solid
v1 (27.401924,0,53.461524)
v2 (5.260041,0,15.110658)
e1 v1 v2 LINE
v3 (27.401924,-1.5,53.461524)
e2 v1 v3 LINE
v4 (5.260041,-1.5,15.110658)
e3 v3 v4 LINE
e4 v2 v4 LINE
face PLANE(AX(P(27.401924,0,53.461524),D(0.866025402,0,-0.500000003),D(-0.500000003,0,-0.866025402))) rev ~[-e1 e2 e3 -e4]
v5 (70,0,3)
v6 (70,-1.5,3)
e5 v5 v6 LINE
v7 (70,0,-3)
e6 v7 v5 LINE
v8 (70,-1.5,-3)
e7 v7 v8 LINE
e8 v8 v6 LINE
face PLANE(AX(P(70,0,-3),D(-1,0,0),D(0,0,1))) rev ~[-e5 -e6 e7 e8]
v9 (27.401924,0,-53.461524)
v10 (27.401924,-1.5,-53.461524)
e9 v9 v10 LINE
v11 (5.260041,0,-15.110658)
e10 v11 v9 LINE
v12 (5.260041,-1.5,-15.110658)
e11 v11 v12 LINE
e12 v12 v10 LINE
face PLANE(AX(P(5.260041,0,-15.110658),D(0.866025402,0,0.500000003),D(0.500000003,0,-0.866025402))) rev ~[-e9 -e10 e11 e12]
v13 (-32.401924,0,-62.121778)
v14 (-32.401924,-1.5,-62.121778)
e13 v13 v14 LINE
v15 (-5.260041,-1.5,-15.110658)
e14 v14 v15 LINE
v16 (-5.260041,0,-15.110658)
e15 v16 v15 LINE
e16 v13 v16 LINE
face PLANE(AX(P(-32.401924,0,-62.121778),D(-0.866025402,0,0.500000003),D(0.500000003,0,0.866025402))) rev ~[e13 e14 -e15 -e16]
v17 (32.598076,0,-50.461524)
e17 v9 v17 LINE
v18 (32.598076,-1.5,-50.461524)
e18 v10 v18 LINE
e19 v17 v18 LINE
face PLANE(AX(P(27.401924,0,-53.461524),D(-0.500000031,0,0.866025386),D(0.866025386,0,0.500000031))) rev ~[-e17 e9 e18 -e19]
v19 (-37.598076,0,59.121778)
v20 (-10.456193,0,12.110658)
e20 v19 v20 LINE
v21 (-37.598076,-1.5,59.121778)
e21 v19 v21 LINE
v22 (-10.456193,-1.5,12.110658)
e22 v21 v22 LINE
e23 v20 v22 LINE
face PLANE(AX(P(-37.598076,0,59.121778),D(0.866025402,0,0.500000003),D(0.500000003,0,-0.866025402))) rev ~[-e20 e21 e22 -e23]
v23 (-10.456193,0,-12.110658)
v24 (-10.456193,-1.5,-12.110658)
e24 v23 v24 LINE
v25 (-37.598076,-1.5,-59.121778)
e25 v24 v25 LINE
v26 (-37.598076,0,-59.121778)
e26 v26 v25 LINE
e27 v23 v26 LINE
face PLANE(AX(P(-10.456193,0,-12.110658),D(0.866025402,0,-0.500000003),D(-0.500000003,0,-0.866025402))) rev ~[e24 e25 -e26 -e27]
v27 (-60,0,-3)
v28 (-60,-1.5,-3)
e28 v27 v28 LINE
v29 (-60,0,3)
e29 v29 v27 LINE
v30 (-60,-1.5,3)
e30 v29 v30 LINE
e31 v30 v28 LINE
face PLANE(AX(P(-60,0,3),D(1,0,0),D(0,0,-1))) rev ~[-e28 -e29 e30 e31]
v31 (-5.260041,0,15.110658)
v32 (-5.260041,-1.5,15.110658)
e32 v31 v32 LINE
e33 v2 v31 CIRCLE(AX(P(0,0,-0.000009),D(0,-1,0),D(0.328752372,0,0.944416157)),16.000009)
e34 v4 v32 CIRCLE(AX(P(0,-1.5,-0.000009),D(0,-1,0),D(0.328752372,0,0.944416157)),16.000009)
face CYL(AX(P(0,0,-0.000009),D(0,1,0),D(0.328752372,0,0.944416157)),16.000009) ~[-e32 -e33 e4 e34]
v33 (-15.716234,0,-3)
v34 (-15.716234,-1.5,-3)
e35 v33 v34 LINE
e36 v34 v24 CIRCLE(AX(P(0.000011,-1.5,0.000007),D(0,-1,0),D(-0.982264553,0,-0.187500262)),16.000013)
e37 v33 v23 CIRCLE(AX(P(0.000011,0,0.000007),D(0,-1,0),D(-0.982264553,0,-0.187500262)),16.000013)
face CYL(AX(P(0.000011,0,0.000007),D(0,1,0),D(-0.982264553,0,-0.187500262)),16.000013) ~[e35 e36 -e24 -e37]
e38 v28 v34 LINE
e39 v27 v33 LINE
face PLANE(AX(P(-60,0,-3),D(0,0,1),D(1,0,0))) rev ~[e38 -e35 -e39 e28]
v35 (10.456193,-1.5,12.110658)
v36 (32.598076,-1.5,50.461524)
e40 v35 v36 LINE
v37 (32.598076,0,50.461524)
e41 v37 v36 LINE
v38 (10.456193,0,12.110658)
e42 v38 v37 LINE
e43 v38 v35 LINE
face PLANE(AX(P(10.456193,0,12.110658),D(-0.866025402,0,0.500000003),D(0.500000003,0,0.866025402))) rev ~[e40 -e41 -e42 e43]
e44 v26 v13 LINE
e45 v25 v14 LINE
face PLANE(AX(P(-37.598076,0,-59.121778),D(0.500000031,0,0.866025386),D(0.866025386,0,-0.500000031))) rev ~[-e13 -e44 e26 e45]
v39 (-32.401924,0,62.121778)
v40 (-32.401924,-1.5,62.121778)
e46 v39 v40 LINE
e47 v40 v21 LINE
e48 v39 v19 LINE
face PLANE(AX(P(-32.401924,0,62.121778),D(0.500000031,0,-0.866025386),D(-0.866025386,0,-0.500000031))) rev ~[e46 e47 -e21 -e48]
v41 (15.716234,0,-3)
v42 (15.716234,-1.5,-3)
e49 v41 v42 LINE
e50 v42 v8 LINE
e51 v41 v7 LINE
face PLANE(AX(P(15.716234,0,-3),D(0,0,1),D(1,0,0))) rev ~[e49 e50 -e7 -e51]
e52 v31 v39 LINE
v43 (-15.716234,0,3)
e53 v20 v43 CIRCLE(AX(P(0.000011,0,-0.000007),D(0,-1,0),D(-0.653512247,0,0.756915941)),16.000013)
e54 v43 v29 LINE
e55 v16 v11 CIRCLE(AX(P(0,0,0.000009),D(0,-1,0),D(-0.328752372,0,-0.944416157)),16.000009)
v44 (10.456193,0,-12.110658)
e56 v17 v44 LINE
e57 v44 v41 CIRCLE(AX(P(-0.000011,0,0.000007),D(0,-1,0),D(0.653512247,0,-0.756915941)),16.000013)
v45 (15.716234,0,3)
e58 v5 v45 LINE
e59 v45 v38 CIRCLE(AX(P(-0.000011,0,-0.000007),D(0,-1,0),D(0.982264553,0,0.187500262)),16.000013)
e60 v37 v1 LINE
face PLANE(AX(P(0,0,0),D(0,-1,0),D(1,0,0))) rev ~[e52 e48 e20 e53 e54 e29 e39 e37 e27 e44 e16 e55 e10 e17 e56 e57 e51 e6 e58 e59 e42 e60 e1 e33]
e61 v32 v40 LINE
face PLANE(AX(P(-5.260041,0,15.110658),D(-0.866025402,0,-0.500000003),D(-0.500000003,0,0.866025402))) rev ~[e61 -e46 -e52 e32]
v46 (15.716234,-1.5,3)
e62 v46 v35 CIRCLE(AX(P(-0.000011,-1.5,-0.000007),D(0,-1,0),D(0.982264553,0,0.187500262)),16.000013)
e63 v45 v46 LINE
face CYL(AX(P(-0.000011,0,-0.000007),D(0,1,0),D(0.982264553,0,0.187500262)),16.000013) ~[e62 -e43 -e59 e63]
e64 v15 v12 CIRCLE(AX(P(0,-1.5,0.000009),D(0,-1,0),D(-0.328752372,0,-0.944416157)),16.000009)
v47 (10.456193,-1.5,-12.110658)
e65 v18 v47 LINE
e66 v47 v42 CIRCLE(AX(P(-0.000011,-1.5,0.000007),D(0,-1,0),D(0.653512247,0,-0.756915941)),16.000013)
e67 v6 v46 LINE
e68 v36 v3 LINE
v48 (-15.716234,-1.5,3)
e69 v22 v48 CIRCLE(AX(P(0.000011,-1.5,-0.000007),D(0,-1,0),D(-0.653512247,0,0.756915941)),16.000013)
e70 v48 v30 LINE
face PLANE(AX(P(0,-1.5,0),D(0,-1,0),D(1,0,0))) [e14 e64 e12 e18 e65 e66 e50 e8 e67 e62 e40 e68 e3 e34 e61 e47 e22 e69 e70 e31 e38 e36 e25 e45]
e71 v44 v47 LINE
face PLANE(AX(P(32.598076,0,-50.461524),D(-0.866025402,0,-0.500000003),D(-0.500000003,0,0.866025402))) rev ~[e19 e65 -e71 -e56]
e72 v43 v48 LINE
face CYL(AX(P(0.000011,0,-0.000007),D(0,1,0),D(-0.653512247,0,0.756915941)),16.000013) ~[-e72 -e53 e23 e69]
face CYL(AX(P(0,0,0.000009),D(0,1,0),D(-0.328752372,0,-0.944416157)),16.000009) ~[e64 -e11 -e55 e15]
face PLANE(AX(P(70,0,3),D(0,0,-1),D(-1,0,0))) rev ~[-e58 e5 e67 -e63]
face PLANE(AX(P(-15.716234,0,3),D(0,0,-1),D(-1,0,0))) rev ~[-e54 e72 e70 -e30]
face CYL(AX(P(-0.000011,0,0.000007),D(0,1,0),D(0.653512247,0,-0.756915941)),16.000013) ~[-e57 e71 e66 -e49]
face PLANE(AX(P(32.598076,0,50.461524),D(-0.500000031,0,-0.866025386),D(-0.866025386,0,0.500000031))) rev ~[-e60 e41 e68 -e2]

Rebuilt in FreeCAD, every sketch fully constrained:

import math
import FreeCAD as App
import Part
import Sketcher
from FreeCAD import Vector
Q = App.Units.Quantity

doc = App.newDocument("Part")
body = doc.addObject("PartDesign::Body", "Body")

# Sketch on XZ plane
sketch1 = body.newObject("Sketcher::SketchObject", "Sketch")
sketch1.AttachmentSupport = (doc.getObject("XZ_Plane"), [""])
sketch1.MapMode = "FlatFace"
sketch1.addGeometry(Part.LineSegment(Vector(-60, -3, 0), Vector(-15.716234, -3, 0)), False)
sketch1.addGeometry(Part.ArcOfCircle(Part.Circle(Vector(0.000011, 0.000007, 0), Vector(0, 0, 1), 16.000013), math.radians(-169.193062), math.radians(-130.806937)), False)
sketch1.addGeometry(Part.LineSegment(Vector(-10.456193, -12.110658, 0), Vector(-37.598076, -59.121778, 0)), False)
sketch1.addGeometry(Part.LineSegment(Vector(-37.598076, -59.121778, 0), Vector(-32.401924, -62.121778, 0)), False)
sketch1.addGeometry(Part.LineSegment(Vector(-32.401924, -62.121778, 0), Vector(-5.260041, -15.110658, 0)), False)
sketch1.addGeometry(Part.ArcOfCircle(Part.Circle(Vector(0, 0.000009, 0), Vector(0, 0, 1), 16.000009), math.radians(-109.193067), math.radians(-70.806933)), False)
sketch1.addGeometry(Part.LineSegment(Vector(5.260041, -15.110658, 0), Vector(27.401924, -53.461524, 0)), False)
sketch1.addGeometry(Part.LineSegment(Vector(27.401924, -53.461524, 0), Vector(32.598076, -50.461524, 0)), False)
sketch1.addGeometry(Part.LineSegment(Vector(32.598076, -50.461524, 0), Vector(10.456193, -12.110658, 0)), False)
sketch1.addGeometry(Part.ArcOfCircle(Part.Circle(Vector(-0.000011, 0.000007, 0), Vector(0, 0, 1), 16.000013), math.radians(-49.193063), math.radians(-10.806938)), False)
sketch1.addGeometry(Part.LineSegment(Vector(15.716234, -3, 0), Vector(70, -3, 0)), False)
sketch1.addGeometry(Part.LineSegment(Vector(70, -3, 0), Vector(70, 3, 0)), False)
sketch1.addGeometry(Part.LineSegment(Vector(70, 3, 0), Vector(15.716234, 3, 0)), False)
sketch1.addGeometry(Part.ArcOfCircle(Part.Circle(Vector(-0.000011, -0.000007, 0), Vector(0, 0, 1), 16.000013), math.radians(10.806938), math.radians(49.193063)), False)
sketch1.addGeometry(Part.LineSegment(Vector(10.456193, 12.110658, 0), Vector(32.598076, 50.461524, 0)), False)
sketch1.addGeometry(Part.LineSegment(Vector(32.598076, 50.461524, 0), Vector(27.401924, 53.461524, 0)), False)
sketch1.addGeometry(Part.LineSegment(Vector(27.401924, 53.461524, 0), Vector(5.260041, 15.110658, 0)), False)
sketch1.addGeometry(Part.ArcOfCircle(Part.Circle(Vector(0, -0.000009, 0), Vector(0, 0, 1), 16.000009), math.radians(70.806933), math.radians(109.193067)), False)
sketch1.addGeometry(Part.LineSegment(Vector(-5.260041, 15.110658, 0), Vector(-32.401924, 62.121778, 0)), False)
sketch1.addGeometry(Part.LineSegment(Vector(-32.401924, 62.121778, 0), Vector(-37.598076, 59.121778, 0)), False)
sketch1.addGeometry(Part.LineSegment(Vector(-37.598076, 59.121778, 0), Vector(-10.456193, 12.110658, 0)), False)
sketch1.addGeometry(Part.ArcOfCircle(Part.Circle(Vector(0.000011, -0.000007, 0), Vector(0, 0, 1), 16.000013), math.radians(130.806937), math.radians(169.193062)), False)
sketch1.addGeometry(Part.LineSegment(Vector(-15.716234, 3, 0), Vector(-60, 3, 0)), False)
sketch1.addGeometry(Part.LineSegment(Vector(-60, 3, 0), Vector(-60, -3, 0)), False)
sketch1.addConstraint(Sketcher.Constraint("Coincident", 0, 2, 1, 1))
sketch1.addConstraint(Sketcher.Constraint("Coincident", 1, 2, 2, 1))
sketch1.addConstraint(Sketcher.Constraint("Coincident", 2, 2, 3, 1))
sketch1.addConstraint(Sketcher.Constraint("Coincident", 3, 2, 4, 1))
sketch1.addConstraint(Sketcher.Constraint("Coincident", 4, 2, 5, 1))
sketch1.addConstraint(Sketcher.Constraint("Coincident", 5, 2, 6, 1))
sketch1.addConstraint(Sketcher.Constraint("Coincident", 6, 2, 7, 1))
sketch1.addConstraint(Sketcher.Constraint("Coincident", 7, 2, 8, 1))
sketch1.addConstraint(Sketcher.Constraint("Coincident", 8, 2, 9, 1))
sketch1.addConstraint(Sketcher.Constraint("Coincident", 9, 2, 10, 1))
sketch1.addConstraint(Sketcher.Constraint("Coincident", 10, 2, 11, 1))
sketch1.addConstraint(Sketcher.Constraint("Coincident", 11, 2, 12, 1))
sketch1.addConstraint(Sketcher.Constraint("Coincident", 12, 2, 13, 1))
sketch1.addConstraint(Sketcher.Constraint("Coincident", 13, 2, 14, 1))
sketch1.addConstraint(Sketcher.Constraint("Coincident", 14, 2, 15, 1))
sketch1.addConstraint(Sketcher.Constraint("Coincident", 15, 2, 16, 1))
sketch1.addConstraint(Sketcher.Constraint("Coincident", 16, 2, 17, 1))
sketch1.addConstraint(Sketcher.Constraint("Coincident", 17, 2, 18, 1))
sketch1.addConstraint(Sketcher.Constraint("Coincident", 18, 2, 19, 1))
sketch1.addConstraint(Sketcher.Constraint("Coincident", 19, 2, 20, 1))
sketch1.addConstraint(Sketcher.Constraint("Coincident", 20, 2, 21, 1))
sketch1.addConstraint(Sketcher.Constraint("Coincident", 21, 2, 22, 1))
sketch1.addConstraint(Sketcher.Constraint("Coincident", 22, 2, 23, 1))
sketch1.addConstraint(Sketcher.Constraint("Coincident", 23, 2, 0, 1))
sketch1.addConstraint(Sketcher.Constraint("Horizontal", 0))
sketch1.addConstraint(Sketcher.Constraint("Horizontal", 10))
sketch1.addConstraint(Sketcher.Constraint("Vertical", 11))
sketch1.addConstraint(Sketcher.Constraint("Horizontal", 12))
sketch1.addConstraint(Sketcher.Constraint("Horizontal", 22))
sketch1.addConstraint(Sketcher.Constraint("Vertical", 23))
sketch1.addConstraint(Sketcher.Constraint("Coincident", 5, 3, -1, 1))
sketch1.addConstraint(Sketcher.Constraint("Coincident", 17, 3, -1, 1))
sketch1.addConstraint(Sketcher.Constraint("Equal", 1, 9))
sketch1.addConstraint(Sketcher.Constraint("Equal", 9, 13))
sketch1.addConstraint(Sketcher.Constraint("Equal", 5, 17))
sketch1.addConstraint(Sketcher.Constraint("Equal", 13, 21))
sketch1.addConstraint(Sketcher.Constraint("Symmetric", 1, 3, 13, 3, -1, 1))
sketch1.addConstraint(Sketcher.Constraint("Symmetric", 9, 3, 21, 3, -1, 1))
sketch1.addConstraint(Sketcher.Constraint("Symmetric", 1, 3, 9, 3, -2))
sketch1.addConstraint(Sketcher.Constraint("Symmetric", 7, 2, 14, 2, -1))
sketch1.addConstraint(Sketcher.Constraint("Symmetric", 6, 2, 15, 2, -1))
sketch1.addConstraint(Sketcher.Constraint("Symmetric", 3, 2, 18, 2, -1))
sketch1.addConstraint(Sketcher.Constraint("Symmetric", 2, 2, 19, 2, -1))
sketch1.addConstraint(Sketcher.Constraint("Perpendicular", 2, 3))
sketch1.addConstraint(Sketcher.Constraint("Perpendicular", 3, 4))
sketch1.addConstraint(Sketcher.Constraint("Perpendicular", 6, 7))
sketch1.addConstraint(Sketcher.Constraint("Perpendicular", 7, 8))
sketch1.addConstraint(Sketcher.Constraint("Parallel", 4, 14))
sketch1.addConstraint(Sketcher.Constraint("Perpendicular", 14, 15))
sketch1.addConstraint(Sketcher.Constraint("Perpendicular", 15, 16))
sketch1.addConstraint(Sketcher.Constraint("Parallel", 8, 18))
sketch1.addConstraint(Sketcher.Constraint("Perpendicular", 19, 20))
sketch1.addConstraint(Sketcher.Constraint("Horizontal", 4, 2, 5, 2))
sketch1.addConstraint(Sketcher.Constraint("Horizontal", 1, 2, 8, 2))
sketch1.addConstraint(Sketcher.Constraint("Horizontal", 0, 2, 9, 2))
sketch1.addConstraint(Sketcher.Constraint("Horizontal", 12, 2, 21, 2))
sketch1.addConstraint(Sketcher.Constraint("Vertical", 9, 2, 12, 2))
sketch1.addConstraint(Sketcher.Constraint("Equal", 2, 4))
sketch1.addConstraint(Sketcher.Constraint("DistanceY", 11, 1, 11, 2, 6.0))
sketch1.addConstraint(Sketcher.Constraint("Angle", 2, Q("-120 deg")))
sketch1.addConstraint(Sketcher.Constraint("Distance", 3, 6.0))
sketch1.addConstraint(Sketcher.Constraint("DistanceX", -1, 1, 10, 2, 70.0))
sketch1.addConstraint(Sketcher.Constraint("DistanceX", 22, 2, -1, 1, 60.0))
sketch1.addConstraint(Sketcher.Constraint("DistanceX", 18, 2, 14, 2, 65.0))
sketch1.addConstraint(Sketcher.Constraint("Radius", 5, 16.000009))
sketch1.addConstraint(Sketcher.Constraint("Radius", 1, 16.000013))
sketch1.addConstraint(Sketcher.Constraint("DistanceX", 0, 1, 0, 2, 44.283766))
sketch1.addConstraint(Sketcher.Constraint("DistanceX", 4, 2, -1, 1, 5.260041))
sketch1.addConstraint(Sketcher.Constraint("DistanceY", 2, 2, 1, 2, 47.01112))
pad1 = body.newObject("PartDesign::Pad", "Pad")
pad1.Profile = sketch1
pad1.Length = 1.5

doc.recompute()
